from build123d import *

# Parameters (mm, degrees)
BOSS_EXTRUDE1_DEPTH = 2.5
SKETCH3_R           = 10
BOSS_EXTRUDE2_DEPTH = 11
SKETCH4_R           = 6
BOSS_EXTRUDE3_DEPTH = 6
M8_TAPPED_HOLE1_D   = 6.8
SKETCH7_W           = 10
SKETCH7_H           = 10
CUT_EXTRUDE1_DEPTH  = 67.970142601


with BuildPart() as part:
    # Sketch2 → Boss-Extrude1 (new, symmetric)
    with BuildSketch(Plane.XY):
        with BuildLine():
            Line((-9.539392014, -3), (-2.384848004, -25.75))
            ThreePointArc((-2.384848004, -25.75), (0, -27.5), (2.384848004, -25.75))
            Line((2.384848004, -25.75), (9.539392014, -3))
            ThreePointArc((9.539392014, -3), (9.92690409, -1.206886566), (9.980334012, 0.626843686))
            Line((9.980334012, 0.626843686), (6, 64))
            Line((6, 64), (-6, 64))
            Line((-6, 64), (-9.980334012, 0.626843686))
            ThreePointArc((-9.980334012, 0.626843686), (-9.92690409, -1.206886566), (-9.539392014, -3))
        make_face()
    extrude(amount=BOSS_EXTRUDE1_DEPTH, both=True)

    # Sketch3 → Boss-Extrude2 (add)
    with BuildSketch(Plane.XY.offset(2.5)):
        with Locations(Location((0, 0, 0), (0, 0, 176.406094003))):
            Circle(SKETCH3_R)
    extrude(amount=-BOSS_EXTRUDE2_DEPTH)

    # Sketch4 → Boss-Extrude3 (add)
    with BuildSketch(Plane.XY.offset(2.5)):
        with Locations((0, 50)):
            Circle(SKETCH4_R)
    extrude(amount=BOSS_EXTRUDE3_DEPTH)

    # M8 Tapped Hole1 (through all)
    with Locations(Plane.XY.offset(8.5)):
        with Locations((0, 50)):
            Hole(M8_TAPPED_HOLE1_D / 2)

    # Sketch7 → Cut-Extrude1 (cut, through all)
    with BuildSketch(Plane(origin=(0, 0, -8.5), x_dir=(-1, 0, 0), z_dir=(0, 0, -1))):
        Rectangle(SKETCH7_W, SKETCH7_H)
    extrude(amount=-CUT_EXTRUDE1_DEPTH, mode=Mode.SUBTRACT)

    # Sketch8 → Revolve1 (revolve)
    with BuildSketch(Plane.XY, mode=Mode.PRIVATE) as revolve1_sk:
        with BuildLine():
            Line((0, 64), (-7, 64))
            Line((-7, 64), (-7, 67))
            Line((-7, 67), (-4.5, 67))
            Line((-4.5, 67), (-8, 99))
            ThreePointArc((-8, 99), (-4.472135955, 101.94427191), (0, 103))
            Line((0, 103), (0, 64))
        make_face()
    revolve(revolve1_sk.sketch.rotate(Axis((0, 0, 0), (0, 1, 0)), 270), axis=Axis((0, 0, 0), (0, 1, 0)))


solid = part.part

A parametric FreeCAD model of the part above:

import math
import FreeCAD as App
import Part
import Sketcher
Q = App.Units.Quantity

doc = App.newDocument("Part")
params = doc.addObject("Spreadsheet::Sheet", "Params")
for row, (alias, value) in enumerate([
    ("sketch1_radius", "10 mm"),
    ("sketch1_radius2", "2.5 mm"),
    ("sketch1_width", "12 mm"),
    ("pad1_length", "5 mm"),
    ("sketch2_diameter", "20 mm"),
    ("pad2_length", "11 mm"),
    ("sketch3_diameter", "12 mm"),
    ("pad3_length", "6 mm"),
    ("sketch4_diameter", "6.8 mm"),
    ("hole_diameter", "6.8 mm"),
    ("sketch5_width", "10 mm"),
    ("sketch6_radius", "10 mm"),
    ("sketch6_width", "7 mm"),
    ("sketch6_height", "39 mm"),
    ("sketch6_height2", "3 mm"),
    ("sketch6_width2", "2.5 mm"),
    ("revolution_angle", "360 deg"),
], start=1):
    params.set(f"A{row}", alias)
    params.set(f"B{row}", "=" + value)
    params.setAlias(f"B{row}", alias)

body = doc.addObject("PartDesign::Body", "Body")

# Sketch on XY plane
sketch1 = body.newObject("Sketcher::SketchObject", "Sketch")
sketch1.AttachmentSupport = (doc.getObject("XY_Plane"), [""])
sketch1.MapMode = "FlatFace"
sketch1.addGeometry([
    Part.LineSegment(App.Vector(-9.539392, -3, 0), App.Vector(-2.384848, -25.75, 0)),  # 0
    Part.ArcOfCircle(Part.Circle(App.Vector(0, -25, 0), App.Vector(0, 0, 1), 2.5), math.radians(-162.542397), math.radians(-17.457603)),  # 1
    Part.LineSegment(App.Vector(2.384848, -25.75, 0), App.Vector(9.539392, -3, 0)),  # 2
    Part.ArcOfCircle(Part.Circle(App.Vector(0, 0, 0), App.Vector(0, 0, 1), 10), math.radians(-17.457603), math.radians(3.593906)),  # 3
    Part.LineSegment(App.Vector(9.980334, 0.626844, 0), App.Vector(6, 64, 0)),  # 4
    Part.LineSegment(App.Vector(6, 64, 0), App.Vector(-6, 64, 0)),  # 5
    Part.LineSegment(App.Vector(-6, 64, 0), App.Vector(-9.980334, 0.626844, 0)),  # 6
    Part.ArcOfCircle(Part.Circle(App.Vector(0, 0, 0), App.Vector(0, 0, 1), 10), math.radians(176.406094), math.radians(197.457603)),  # 7
], False)
sketch1.addConstraint([
    Sketcher.Constraint("Tangent", 0, 2, 1, 1),
    Sketcher.Constraint("Tangent", 1, 2, 2, 1),
    Sketcher.Constraint("Tangent", 2, 2, 3, 1),
    Sketcher.Constraint("Tangent", 3, 2, 4, 1),
    Sketcher.Constraint("Coincident", 4, 2, 5, 1),
    Sketcher.Constraint("Coincident", 5, 2, 6, 1),
    Sketcher.Constraint("Tangent", 6, 2, 7, 1),
    Sketcher.Constraint("Tangent", 7, 2, 0, 1),
    Sketcher.Constraint("Horizontal", 5),
    Sketcher.Constraint("Coincident", 3, 3, -1, 1),
    Sketcher.Constraint("Coincident", 7, 3, -1, 1),
    Sketcher.Constraint("Equal", 3, 7),
    Sketcher.Constraint("PointOnObject", 1, 3, -2),
    Sketcher.Constraint("Horizontal", 3, 2, 6, 2),
    Sketcher.Constraint("Radius", 3, Q("10 mm")),
    Sketcher.Constraint("Radius", 1, Q("2.5 mm")),
    Sketcher.Constraint("DistanceX", 5, 2, 5, 1, Q("12 mm")),
    Sketcher.Constraint("DistanceY", 1, 3, -1, 1, Q("25 mm")),
    Sketcher.Constraint("DistanceY", -1, 1, 4, 2, Q("64 mm")),
])
sketch1.setExpression("Constraints[14]", "Params.sketch1_radius")
sketch1.setExpression("Constraints[15]", "Params.sketch1_radius2")
sketch1.setExpression("Constraints[16]", "Params.sketch1_width")
pad1 = body.newObject("PartDesign::Pad", "Pad")
pad1.Profile = sketch1
pad1.setExpression("Length", "Params.pad1_length")
pad1.Midplane = True

# Sketch on XY plane
sketch2 = body.newObject("Sketcher::SketchObject", "Sketch001")
sketch2.AttachmentSupport = (doc.getObject("XY_Plane"), [""])
sketch2.MapMode = "FlatFace"
sketch2.AttachmentOffset = App.Placement(App.Vector(0, 0, 2.5), App.Rotation())
sketch2.addGeometry(Part.Circle(App.Vector(0, 0, 0), App.Vector(0, 0, 1), 10), False)
sketch2.addConstraint([
    Sketcher.Constraint("Coincident", 0, 3, -1, 1),
    Sketcher.Constraint("Diameter", 0, Q("20 mm")),
])
sketch2.setExpression("Constraints[1]", "Params.sketch2_diameter")
pad2 = body.newObject("PartDesign::Pad", "Pad001")
pad2.Profile = sketch2
pad2.setExpression("Length", "Params.pad2_length")
pad2.Reversed = True

# Sketch on XY plane
sketch3 = body.newObject("Sketcher::SketchObject", "Sketch002")
sketch3.AttachmentSupport = (doc.getObject("XY_Plane"), [""])
sketch3.MapMode = "FlatFace"
sketch3.AttachmentOffset = App.Placement(App.Vector(0, 0, 2.5), App.Rotation())
sketch3.addGeometry(Part.Circle(App.Vector(0, 50, 0), App.Vector(0, 0, 1), 6), False)
sketch3.addConstraint([
    Sketcher.Constraint("PointOnObject", 0, 3, -2),
    Sketcher.Constraint("Diameter", 0, Q("12 mm")),
    Sketcher.Constraint("DistanceY", -1, 1, 0, 3, Q("50 mm")),
])
sketch3.setExpression("Constraints[1]", "Params.sketch3_diameter")
pad3 = body.newObject("PartDesign::Pad", "Pad002")
pad3.Profile = sketch3
pad3.setExpression("Length", "Params.pad3_length")

# Sketch on XY plane
sketch4 = body.newObject("Sketcher::SketchObject", "Sketch003")
sketch4.AttachmentSupport = (doc.getObject("XY_Plane"), [""])
sketch4.MapMode = "FlatFace"
sketch4.AttachmentOffset = App.Placement(App.Vector(0, 0, 8.5), App.Rotation())
sketch4.addGeometry(Part.Circle(App.Vector(0, 50, 0), App.Vector(0, 0, 1), 3.4), False)
sketch4.addConstraint([
    Sketcher.Constraint("PointOnObject", 0, 3, -2),
    Sketcher.Constraint("Diameter", 0, Q("6.8 mm")),
    Sketcher.Constraint("DistanceY", -1, 1, 0, 3, Q("50 mm")),
])
sketch4.setExpression("Constraints[1]", "Params.sketch4_diameter")
doc.recompute()
hole = body.newObject("PartDesign::Hole", "Hole")
hole.Profile = sketch4
hole.ThreadType = "None"
hole.setExpression("Diameter", "Params.hole_diameter")
hole.DepthType = "ThroughAll"

# Sketch on XY plane
sketch5 = body.newObject("Sketcher::SketchObject", "Sketch004")
sketch5.AttachmentSupport = (doc.getObject("XY_Plane"), [""])
sketch5.MapMode = "FlatFace"
sketch5.AttachmentOffset = App.Placement(App.Vector(0, 0, -8.5), App.Rotation())
sketch5.addGeometry([
    Part.LineSegment(App.Vector(5, 5, 0), App.Vector(5, -5, 0)),
    Part.LineSegment(App.Vector(5, -5, 0), App.Vector(-5, -5, 0)),
    Part.LineSegment(App.Vector(-5, -5, 0), App.Vector(-5, 5, 0)),
    Part.LineSegment(App.Vector(-5, 5, 0), App.Vector(5, 5, 0)),
], False)
sketch5.addConstraint([
    Sketcher.Constraint("Coincident", 0, 2, 1, 1),
    Sketcher.Constraint("Coincident", 1, 2, 2, 1),
    Sketcher.Constraint("Coincident", 2, 2, 3, 1),
    Sketcher.Constraint("Coincident", 3, 2, 0, 1),
    Sketcher.Constraint("Vertical", 0),
    Sketcher.Constraint("Horizontal", 1),
    Sketcher.Constraint("Vertical", 2),
    Sketcher.Constraint("Horizontal", 3),
    Sketcher.Constraint("Symmetric", 0, 2, 2, 2, -1, 1),
    Sketcher.Constraint("Equal", 3, 0),
    Sketcher.Constraint("DistanceX", 1, 2, 1, 1, Q("10 mm")),
])
sketch5.setExpression("Constraints[10]", "Params.sketch5_width")
pocket1 = body.newObject("PartDesign::Pocket", "Pocket")
pocket1.Profile = sketch5
pocket1.Type = "ThroughAll"
pocket1.Reversed = True

# Sketch on XY plane
sketch6 = body.newObject("Sketcher::SketchObject", "Sketch005")
sketch6.AttachmentSupport = (doc.getObject("XY_Plane"), [""])
sketch6.MapMode = "FlatFace"
sketch6.addGeometry([
    Part.LineSegment(App.Vector(-7, 64, 0), App.Vector(0, 64, 0)),  # 0
    Part.LineSegment(App.Vector(0, 64, 0), App.Vector(0, 103, 0)),  # 1
    Part.ArcOfCircle(Part.Circle(App.Vector(0, 93, 0), App.Vector(0, 0, 1), 10), math.radians(90), math.radians(143.130102)),  # 2
    Part.LineSegment(App.Vector(-8, 99, 0), App.Vector(-4.5, 67, 0)),  # 3
    Part.LineSegment(App.Vector(-4.5, 67, 0), App.Vector(-7, 67, 0)),  # 4
    Part.LineSegment(App.Vector(-7, 67, 0), App.Vector(-7, 64, 0)),  # 5
], False)
sketch6.addConstraint([
    Sketcher.Constraint("Coincident", 0, 2, 1, 1),
    Sketcher.Constraint("Coincident", 1, 2, 2, 1),
    Sketcher.Constraint("Coincident", 2, 2, 3, 1),
    Sketcher.Constraint("Coincident", 3, 2, 4, 1),
    Sketcher.Constraint("Coincident", 4, 2, 5, 1),
    Sketcher.Constraint("Coincident", 5, 2, 0, 1),
    Sketcher.Constraint("Horizontal", 0),
    Sketcher.Constraint("Vertical", 1),
    Sketcher.Constraint("Horizontal", 4),
    Sketcher.Constraint("Vertical", 5),
    Sketcher.Constraint("PointOnObject", 2, 3, -2),
    Sketcher.Constraint("PointOnObject", 0, 2, -2),
    Sketcher.Constraint("Radius", 2, Q("10 mm")),
    Sketcher.Constraint("DistanceX", 0, 1, 0, 2, Q("7 mm")),
    Sketcher.Constraint("DistanceY", 1, 1, 1, 2, Q("39 mm")),
    Sketcher.Constraint("DistanceY", 5, 2, 5, 1, Q("3 mm")),
    Sketcher.Constraint("DistanceX", 4, 2, 4, 1, Q("2.5 mm")),
    Sketcher.Constraint("DistanceY", -1, 1, 2, 3, Q("93 mm")),
    Sketcher.Constraint("DistanceX", 2, 2, -1, 1, Q("8 mm")),
])
sketch6.setExpression("Constraints[12]", "Params.sketch6_radius")
sketch6.setExpression("Constraints[13]", "Params.sketch6_width")
sketch6.setExpression("Constraints[14]", "Params.sketch6_height")
sketch6.setExpression("Constraints[15]", "Params.sketch6_height2")
sketch6.setExpression("Constraints[16]", "Params.sketch6_width2")
revolution = body.newObject("PartDesign::Revolution", "Revolution")
revolution.Profile = sketch6
revolution.ReferenceAxis = (sketch6, ["V_Axis"])
revolution.setExpression("Angle", "Params.revolution_angle")

doc.recompute()
